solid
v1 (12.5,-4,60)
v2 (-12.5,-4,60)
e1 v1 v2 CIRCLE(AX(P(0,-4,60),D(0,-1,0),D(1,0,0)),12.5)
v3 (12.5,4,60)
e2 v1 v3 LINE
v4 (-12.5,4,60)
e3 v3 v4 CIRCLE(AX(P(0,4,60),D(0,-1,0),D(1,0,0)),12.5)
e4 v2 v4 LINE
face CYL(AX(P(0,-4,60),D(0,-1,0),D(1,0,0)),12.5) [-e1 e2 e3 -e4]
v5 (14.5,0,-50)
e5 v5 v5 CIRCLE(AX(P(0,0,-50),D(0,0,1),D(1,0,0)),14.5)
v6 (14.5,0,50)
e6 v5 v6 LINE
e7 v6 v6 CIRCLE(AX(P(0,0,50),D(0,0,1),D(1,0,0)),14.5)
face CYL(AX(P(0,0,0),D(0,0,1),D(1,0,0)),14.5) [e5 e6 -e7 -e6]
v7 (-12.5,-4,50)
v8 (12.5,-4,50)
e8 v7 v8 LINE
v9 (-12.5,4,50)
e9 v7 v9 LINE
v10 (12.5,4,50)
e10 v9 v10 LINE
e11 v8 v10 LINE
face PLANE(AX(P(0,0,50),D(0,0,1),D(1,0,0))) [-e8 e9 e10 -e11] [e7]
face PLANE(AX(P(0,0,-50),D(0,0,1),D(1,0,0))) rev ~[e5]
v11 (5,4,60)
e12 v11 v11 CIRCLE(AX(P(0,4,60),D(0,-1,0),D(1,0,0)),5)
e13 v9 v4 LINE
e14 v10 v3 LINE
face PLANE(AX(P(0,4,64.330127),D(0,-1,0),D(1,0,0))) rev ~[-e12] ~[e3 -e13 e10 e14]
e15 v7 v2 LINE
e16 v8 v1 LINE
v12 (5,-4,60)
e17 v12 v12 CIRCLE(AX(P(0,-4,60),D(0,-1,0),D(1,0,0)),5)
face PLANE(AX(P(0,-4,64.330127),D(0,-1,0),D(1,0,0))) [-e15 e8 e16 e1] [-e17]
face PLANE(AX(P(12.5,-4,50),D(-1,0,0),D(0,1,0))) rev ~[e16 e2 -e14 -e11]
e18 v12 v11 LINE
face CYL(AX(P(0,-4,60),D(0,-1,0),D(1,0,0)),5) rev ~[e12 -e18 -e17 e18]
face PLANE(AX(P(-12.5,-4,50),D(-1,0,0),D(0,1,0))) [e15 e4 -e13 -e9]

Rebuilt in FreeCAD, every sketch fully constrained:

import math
import FreeCAD as App
import Part
import Sketcher
from FreeCAD import Vector
Q = App.Units.Quantity


def add_polygon(sketch, points):
    """Adds a closed chain of lines whose ends are joined by coincident constraints."""
    first, n = sketch.GeometryCount, len(points)
    for a, b in zip(points, points[1:] + points[:1]):
        sketch.addGeometry(Part.LineSegment(App.Vector(*a, 0), App.Vector(*b, 0)), False)
    for i in range(n):
        sketch.addConstraint(Sketcher.Constraint("Coincident", first + i, 2, first + (i + 1) % n, 1))

doc = App.newDocument("Part")
body = doc.addObject("PartDesign::Body", "Body")

sketch1 = body.newObject("Sketcher::SketchObject", "Sketch")
sketch1.AttachmentSupport = (doc.getObject("XY_Plane"), [""])
sketch1.MapMode = "FlatFace"
sketch1.addGeometry(Part.Circle(Vector(0, 0, 0), Vector(0, 0, 1), 14), False)
sketch1.addConstraint([
    Sketcher.Constraint("Coincident", 0, 3, -1, 1),
    Sketcher.Constraint("Diameter", 0, Q("29 mm")),
])
pad1 = body.newObject("PartDesign::Pad", "Pad")
pad1.Profile = sketch1
pad1.Length = 100
pad1.Midplane = True

sketch2 = body.newObject("Sketcher::SketchObject", "Sketch001")
sketch2.AttachmentSupport = (doc.getObject("XY_Plane"), [""])
sketch2.MapMode = "FlatFace"
sketch2.AttachmentOffset = App.Placement(Vector(0, 0, 50), App.Rotation())
add_polygon(sketch2, [(-12, 4), (-12, -4), (12, -4), (12, 4)])
sketch2.addConstraint([
    Sketcher.Constraint("Vertical", 0),
    Sketcher.Constraint("Horizontal", 1),
    Sketcher.Constraint("Vertical", 2),
    Sketcher.Constraint("Horizontal", 3),
    Sketcher.Constraint("Symmetric", 0, 2, 2, 2, -1, 1),
    Sketcher.Constraint("DistanceX", 1, 1, 1, 2, Q("25 mm")),
    Sketcher.Constraint("DistanceY", 0, 2, 0, 1, Q("8 mm")),
])
pad2 = body.newObject("PartDesign::Pad", "Pad001")
pad2.Profile = sketch2
pad2.Length = 10

sketch3 = body.newObject("Sketcher::SketchObject", "Sketch002")
sketch3.AttachmentSupport = (doc.getObject("XZ_Plane"), [""])
sketch3.MapMode = "FlatFace"
sketch3.AttachmentOffset = App.Placement(Vector(0, 0, 4), App.Rotation())
sketch3.addGeometry([
    Part.LineSegment(Vector(-12, 60, 0), Vector(12, 60, 0)),
    Part.ArcOfCircle(Part.Circle(Vector(0, 60, 0), Vector(0, 0, 1), 12), math.radians(0), math.radians(180)),
], False)
sketch3.addConstraint([
    Sketcher.Constraint("Coincident", 0, 1, 1, 2),
    Sketcher.Constraint("Coincident", 1, 1, 0, 2),
    Sketcher.Constraint("Horizontal", 0),
    Sketcher.Constraint("PointOnObject", 1, 3, -2),
    Sketcher.Constraint("Horizontal", 1, 3, 0, 1),
    Sketcher.Constraint("Radius", 1, Q("12.5 mm")),
    Sketcher.Constraint("DistanceY", -1, 1, 1, 3, Q("60 mm")),
])
pad3 = body.newObject("PartDesign::Pad", "Pad002")
pad3.Profile = sketch3
pad3.Length = 8
pad3.Reversed = True

sketch4 = body.newObject("Sketcher::SketchObject", "Sketch003")
sketch4.AttachmentSupport = (doc.getObject("XZ_Plane"), [""])
sketch4.MapMode = "FlatFace"
sketch4.AttachmentOffset = App.Placement(Vector(0, 0, 4), App.Rotation())
sketch4.addGeometry(Part.Circle(Vector(0, 60, 0), Vector(0, 0, 1), 5), False)
sketch4.addConstraint([
    Sketcher.Constraint("PointOnObject", 0, 3, -2),
    Sketcher.Constraint("Diameter", 0, Q("10 mm")),
    Sketcher.Constraint("DistanceY", -1, 1, 0, 3, Q("60 mm")),
])
pocket1 = body.newObject("PartDesign::Pocket", "Pocket")
pocket1.Profile = sketch4
pocket1.Length = 25

doc.recompute()
